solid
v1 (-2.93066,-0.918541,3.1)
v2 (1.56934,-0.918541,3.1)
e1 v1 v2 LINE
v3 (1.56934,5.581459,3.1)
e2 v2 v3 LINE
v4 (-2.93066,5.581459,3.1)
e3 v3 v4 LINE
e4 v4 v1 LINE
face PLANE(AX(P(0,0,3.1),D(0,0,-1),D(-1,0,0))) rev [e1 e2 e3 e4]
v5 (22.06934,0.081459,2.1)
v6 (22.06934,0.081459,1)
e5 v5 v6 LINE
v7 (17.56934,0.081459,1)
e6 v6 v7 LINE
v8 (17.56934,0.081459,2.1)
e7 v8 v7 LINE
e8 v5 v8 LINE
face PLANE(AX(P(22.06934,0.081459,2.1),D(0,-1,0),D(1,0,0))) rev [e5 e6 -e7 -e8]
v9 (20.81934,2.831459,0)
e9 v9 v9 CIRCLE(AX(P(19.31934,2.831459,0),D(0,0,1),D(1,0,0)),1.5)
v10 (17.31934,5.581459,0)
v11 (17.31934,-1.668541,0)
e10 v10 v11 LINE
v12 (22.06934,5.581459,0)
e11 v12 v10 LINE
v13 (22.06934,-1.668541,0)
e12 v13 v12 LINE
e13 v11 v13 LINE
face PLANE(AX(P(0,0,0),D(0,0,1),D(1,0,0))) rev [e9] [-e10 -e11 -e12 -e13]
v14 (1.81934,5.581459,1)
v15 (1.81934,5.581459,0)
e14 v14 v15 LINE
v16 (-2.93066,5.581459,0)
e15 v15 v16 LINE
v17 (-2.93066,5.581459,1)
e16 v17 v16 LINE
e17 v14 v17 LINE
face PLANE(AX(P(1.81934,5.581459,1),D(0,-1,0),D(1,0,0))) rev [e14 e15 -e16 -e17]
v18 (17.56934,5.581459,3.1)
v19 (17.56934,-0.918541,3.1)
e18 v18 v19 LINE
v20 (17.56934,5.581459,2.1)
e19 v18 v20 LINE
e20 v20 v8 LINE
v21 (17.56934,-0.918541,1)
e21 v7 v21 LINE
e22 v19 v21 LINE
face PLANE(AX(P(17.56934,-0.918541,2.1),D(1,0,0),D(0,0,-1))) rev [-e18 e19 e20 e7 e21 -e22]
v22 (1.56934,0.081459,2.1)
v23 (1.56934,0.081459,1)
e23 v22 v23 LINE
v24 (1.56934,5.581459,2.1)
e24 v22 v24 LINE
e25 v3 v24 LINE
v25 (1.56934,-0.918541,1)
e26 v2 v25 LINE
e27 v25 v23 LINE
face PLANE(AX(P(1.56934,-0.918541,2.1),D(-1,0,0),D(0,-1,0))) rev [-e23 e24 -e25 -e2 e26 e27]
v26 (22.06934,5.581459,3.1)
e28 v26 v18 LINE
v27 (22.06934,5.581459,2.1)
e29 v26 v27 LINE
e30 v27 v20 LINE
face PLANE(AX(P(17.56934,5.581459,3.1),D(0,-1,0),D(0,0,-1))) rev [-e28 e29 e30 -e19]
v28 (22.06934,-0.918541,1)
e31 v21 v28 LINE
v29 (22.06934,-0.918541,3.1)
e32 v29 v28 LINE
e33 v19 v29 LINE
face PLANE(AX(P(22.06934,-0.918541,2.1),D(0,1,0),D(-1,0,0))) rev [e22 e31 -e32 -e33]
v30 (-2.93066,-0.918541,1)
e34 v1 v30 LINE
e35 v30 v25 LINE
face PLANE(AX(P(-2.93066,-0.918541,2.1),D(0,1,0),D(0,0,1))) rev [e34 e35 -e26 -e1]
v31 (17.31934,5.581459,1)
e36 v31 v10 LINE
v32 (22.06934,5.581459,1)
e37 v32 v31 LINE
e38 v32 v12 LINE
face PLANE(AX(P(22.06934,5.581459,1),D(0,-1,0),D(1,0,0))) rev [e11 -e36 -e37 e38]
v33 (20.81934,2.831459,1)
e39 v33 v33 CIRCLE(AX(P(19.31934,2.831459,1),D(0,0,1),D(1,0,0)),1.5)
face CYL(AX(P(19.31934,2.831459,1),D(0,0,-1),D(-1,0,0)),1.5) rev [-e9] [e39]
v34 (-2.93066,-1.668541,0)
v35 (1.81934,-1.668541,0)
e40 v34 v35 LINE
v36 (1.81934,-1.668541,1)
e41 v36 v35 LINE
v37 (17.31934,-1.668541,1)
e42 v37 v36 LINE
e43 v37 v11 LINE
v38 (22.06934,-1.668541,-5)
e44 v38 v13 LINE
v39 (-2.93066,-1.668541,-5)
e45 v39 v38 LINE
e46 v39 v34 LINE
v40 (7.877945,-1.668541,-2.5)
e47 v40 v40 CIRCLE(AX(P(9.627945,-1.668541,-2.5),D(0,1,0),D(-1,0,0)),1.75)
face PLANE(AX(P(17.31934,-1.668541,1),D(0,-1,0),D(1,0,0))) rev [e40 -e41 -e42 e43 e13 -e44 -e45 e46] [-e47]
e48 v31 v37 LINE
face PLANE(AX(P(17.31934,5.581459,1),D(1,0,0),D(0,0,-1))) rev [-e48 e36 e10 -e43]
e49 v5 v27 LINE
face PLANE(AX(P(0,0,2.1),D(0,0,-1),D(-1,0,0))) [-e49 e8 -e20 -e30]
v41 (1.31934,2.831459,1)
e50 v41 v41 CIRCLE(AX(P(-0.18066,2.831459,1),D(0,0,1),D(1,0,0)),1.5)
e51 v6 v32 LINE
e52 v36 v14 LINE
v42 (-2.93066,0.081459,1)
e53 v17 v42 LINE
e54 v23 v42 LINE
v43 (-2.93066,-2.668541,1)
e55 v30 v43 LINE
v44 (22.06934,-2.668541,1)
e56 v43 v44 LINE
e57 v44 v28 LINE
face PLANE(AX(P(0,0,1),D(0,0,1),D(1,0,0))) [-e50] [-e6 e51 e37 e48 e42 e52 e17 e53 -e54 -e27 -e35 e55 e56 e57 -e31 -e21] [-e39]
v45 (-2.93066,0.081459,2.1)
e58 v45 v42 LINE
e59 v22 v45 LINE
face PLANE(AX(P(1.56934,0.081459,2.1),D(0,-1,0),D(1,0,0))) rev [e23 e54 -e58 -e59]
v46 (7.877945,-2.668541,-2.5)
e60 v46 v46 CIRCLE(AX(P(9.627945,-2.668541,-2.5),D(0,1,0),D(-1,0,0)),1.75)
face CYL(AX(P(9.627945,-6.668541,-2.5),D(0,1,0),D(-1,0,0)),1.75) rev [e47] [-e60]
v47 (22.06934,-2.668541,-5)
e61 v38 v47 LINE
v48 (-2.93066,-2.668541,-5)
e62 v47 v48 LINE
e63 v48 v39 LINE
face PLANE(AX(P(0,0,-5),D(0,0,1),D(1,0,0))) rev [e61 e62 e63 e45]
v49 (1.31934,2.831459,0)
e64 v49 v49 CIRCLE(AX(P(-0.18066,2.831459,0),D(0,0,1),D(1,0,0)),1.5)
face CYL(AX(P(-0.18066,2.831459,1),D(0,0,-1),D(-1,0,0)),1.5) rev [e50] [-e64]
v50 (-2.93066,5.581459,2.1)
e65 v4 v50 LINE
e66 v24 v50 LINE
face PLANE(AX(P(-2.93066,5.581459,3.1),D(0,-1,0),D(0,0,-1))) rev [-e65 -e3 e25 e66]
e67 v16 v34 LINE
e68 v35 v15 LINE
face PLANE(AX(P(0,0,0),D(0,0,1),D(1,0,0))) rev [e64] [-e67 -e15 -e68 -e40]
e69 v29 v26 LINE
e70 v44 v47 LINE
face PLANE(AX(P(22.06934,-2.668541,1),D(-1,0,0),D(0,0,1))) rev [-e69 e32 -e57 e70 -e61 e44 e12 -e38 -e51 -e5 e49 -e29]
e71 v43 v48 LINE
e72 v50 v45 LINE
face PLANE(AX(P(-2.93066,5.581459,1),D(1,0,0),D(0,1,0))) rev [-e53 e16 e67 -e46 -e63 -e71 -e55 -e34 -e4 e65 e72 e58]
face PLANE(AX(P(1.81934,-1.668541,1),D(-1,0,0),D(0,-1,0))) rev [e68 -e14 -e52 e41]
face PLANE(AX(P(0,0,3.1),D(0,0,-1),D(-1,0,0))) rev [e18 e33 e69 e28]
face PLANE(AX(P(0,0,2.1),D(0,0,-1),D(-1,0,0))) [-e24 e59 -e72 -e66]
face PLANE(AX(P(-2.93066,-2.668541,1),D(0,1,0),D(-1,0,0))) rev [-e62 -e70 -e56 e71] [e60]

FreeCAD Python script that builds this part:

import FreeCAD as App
import Part
import Sketcher

V = App.Vector
Q = App.Units.Quantity

doc = App.newDocument("Part")
body = doc.addObject("PartDesign::Body", "Body")

# Sketch on XY plane
sketch1 = body.newObject("Sketcher::SketchObject", "Sketch")
sketch1.AttachmentSupport = (doc.getObject("XY_Plane"), [""])
sketch1.MapMode = "FlatFace"
sketch1.addGeometry(Part.LineSegment(V(-2.9, 5.6, 0), V(-2.9, -2.7, 0)), False)
sketch1.addGeometry(Part.LineSegment(V(-2.9, -2.7, 0), V(22.1, -2.7, 0)), False)
sketch1.addGeometry(Part.LineSegment(V(22.1, -2.7, 0), V(22.1, 5.6, 0)), False)
sketch1.addGeometry(Part.LineSegment(V(22.1, 5.6, 0), V(17.3, 5.6, 0)), False)
sketch1.addGeometry(Part.LineSegment(V(17.3, 5.6, 0), V(17.3, -1.7, 0)), False)
sketch1.addGeometry(Part.LineSegment(V(17.3, -1.7, 0), V(1.8, -1.7, 0)), False)
sketch1.addGeometry(Part.LineSegment(V(1.8, -1.7, 0), V(1.8, 5.6, 0)), False)
sketch1.addGeometry(Part.LineSegment(V(1.8, 5.6, 0), V(-2.9, 5.6, 0)), False)
sketch1.addGeometry(Part.Circle(V(-0.2, 2.8, 0), V(0, 0, 1), 1.5), False)
sketch1.addGeometry(Part.Circle(V(19.3, 2.8, 0), V(0, 0, 1), 1.5), False)
sketch1.addConstraint(Sketcher.Constraint("Coincident", 0, 2, 1, 1))
sketch1.addConstraint(Sketcher.Constraint("Coincident", 1, 2, 2, 1))
sketch1.addConstraint(Sketcher.Constraint("Coincident", 2, 2, 3, 1))
sketch1.addConstraint(Sketcher.Constraint("Coincident", 3, 2, 4, 1))
sketch1.addConstraint(Sketcher.Constraint("Coincident", 4, 2, 5, 1))
sketch1.addConstraint(Sketcher.Constraint("Coincident", 5, 2, 6, 1))
sketch1.addConstraint(Sketcher.Constraint("Coincident", 6, 2, 7, 1))
sketch1.addConstraint(Sketcher.Constraint("Coincident", 7, 2, 0, 1))
sketch1.addConstraint(Sketcher.Constraint("Vertical", 0))
sketch1.addConstraint(Sketcher.Constraint("Horizontal", 1))
sketch1.addConstraint(Sketcher.Constraint("Vertical", 2))
sketch1.addConstraint(Sketcher.Constraint("Horizontal", 3))
sketch1.addConstraint(Sketcher.Constraint("Vertical", 4))
sketch1.addConstraint(Sketcher.Constraint("Horizontal", 5))
sketch1.addConstraint(Sketcher.Constraint("Vertical", 6))
sketch1.addConstraint(Sketcher.Constraint("Horizontal", 7))
sketch1.addConstraint(Sketcher.Constraint("Equal", 8, 9))
sketch1.addConstraint(Sketcher.Constraint("Horizontal", 8, 3, 9, 3))
sketch1.addConstraint(Sketcher.Constraint("Horizontal", 3, 2, 6, 2))
sketch1.addConstraint(Sketcher.Constraint("Equal", 3, 7))
sketch1.addConstraint(Sketcher.Constraint("Diameter", 8, Q("3 mm")))
sketch1.addConstraint(Sketcher.Constraint("DistanceX", 1, 1, 1, 2, Q("25 mm")))
sketch1.addConstraint(Sketcher.Constraint("DistanceX", 5, 2, 5, 1, Q("15.5 mm")))
sketch1.addConstraint(Sketcher.Constraint("DistanceX", 3, 2, 9, 3, Q("2 mm")))
sketch1.addConstraint(Sketcher.Constraint("DistanceY", 1, 2, 4, 2, Q("1 mm")))
sketch1.addConstraint(Sketcher.Constraint("DistanceX", 8, 3, 5, 2, Q("2 mm")))
sketch1.addConstraint(Sketcher.Constraint("DistanceY", 0, 2, 0, 1, Q("8.25 mm")))
sketch1.addConstraint(Sketcher.Constraint("DistanceY", 0, 2, 8, 3, Q("5.5 mm")))
sketch1.addConstraint(Sketcher.Constraint("DistanceX", 8, 3, -1, 1, Q("0.18066 mm")))
sketch1.addConstraint(Sketcher.Constraint("DistanceY", -1, 1, 8, 3, Q("2.831459 mm")))
pad1 = body.newObject("PartDesign::Pad", "Pad")
pad1.Profile = sketch1
pad1.Length = 1

# Sketch on XY plane
sketch2 = body.newObject("Sketcher::SketchObject", "Sketch001")
sketch2.AttachmentSupport = (doc.getObject("XY_Plane"), [""])
sketch2.MapMode = "FlatFace"
sketch2.addGeometry(Part.LineSegment(V(22.1, -1.7, 0), V(22.1, -2.7, 0)), False)
sketch2.addGeometry(Part.LineSegment(V(22.1, -2.7, 0), V(-2.9, -2.7, 0)), False)
sketch2.addGeometry(Part.LineSegment(V(-2.9, -2.7, 0), V(-2.9, -1.7, 0)), False)
sketch2.addGeometry(Part.LineSegment(V(-2.9, -1.7, 0), V(22.1, -1.7, 0)), False)
sketch2.addConstraint(Sketcher.Constraint("Coincident", 0, 2, 1, 1))
sketch2.addConstraint(Sketcher.Constraint("Coincident", 1, 2, 2, 1))
sketch2.addConstraint(Sketcher.Constraint("Coincident", 2, 2, 3, 1))
sketch2.addConstraint(Sketcher.Constraint("Coincident", 3, 2, 0, 1))
sketch2.addConstraint(Sketcher.Constraint("Vertical", 0))
sketch2.addConstraint(Sketcher.Constraint("Horizontal", 1))
sketch2.addConstraint(Sketcher.Constraint("Vertical", 2))
sketch2.addConstraint(Sketcher.Constraint("Horizontal", 3))
sketch2.addConstraint(Sketcher.Constraint("DistanceX", 1, 2, 1, 1, Q("25 mm")))
sketch2.addConstraint(Sketcher.Constraint("DistanceY", 0, 2, 0, 1, Q("1 mm")))
sketch2.addConstraint(Sketcher.Constraint("DistanceX", -1, 1, 0, 2, Q("22.06934 mm")))
sketch2.addConstraint(Sketcher.Constraint("DistanceY", 0, 2, -1, 1, Q("2.668541 mm")))
pad2 = body.newObject("PartDesign::Pad", "Pad001")
pad2.Profile = sketch2
pad2.Length = 5
pad2.Reversed = True

# Sketch on XZ plane
sketch3 = body.newObject("Sketcher::SketchObject", "Sketch002")
sketch3.AttachmentSupport = (doc.getObject("XZ_Plane"), [""])
sketch3.MapMode = "FlatFace"
sketch3.AttachmentOffset = App.Placement(V(0, 0, 1.668541), App.Rotation())
sketch3.addGeometry(Part.Circle(V(9.6, -2.5, 0), V(0, 0, 1), 1.8), False)
sketch3.addConstraint(Sketcher.Constraint("Diameter", 0, Q("3.5 mm")))
sketch3.addConstraint(Sketcher.Constraint("DistanceY", 0, 3, -1, 1, Q("2.5 mm")))
sketch3.addConstraint(Sketcher.Constraint("DistanceX", -1, 1, 0, 3, Q("9.627945 mm")))
pocket1 = body.newObject("PartDesign::Pocket", "Pocket")
pocket1.Profile = sketch3
pocket1.Length = 5
pocket1.Reversed = True

# Sketch on XY plane
sketch4 = body.newObject("Sketcher::SketchObject", "Sketch003")
sketch4.AttachmentSupport = (doc.getObject("XY_Plane"), [""])
sketch4.MapMode = "FlatFace"
sketch4.AttachmentOffset = App.Placement(V(0, 0, 1), App.Rotation())
sketch4.addGeometry(Part.LineSegment(V(-2.9, 0.1, 0), V(-2.9, -0.9, 0)), False)
sketch4.addGeometry(Part.LineSegment(V(-2.9, -0.9, 0), V(1.6, -0.9, 0)), False)
sketch4.addGeometry(Part.LineSegment(V(1.6, -0.9, 0), V(1.6, 0.1, 0)), False)
sketch4.addGeometry(Part.LineSegment(V(1.6, 0.1, 0), V(-2.9, 0.1, 0)), False)
sketch4.addGeometry(Part.LineSegment(V(17.6, 0.1, 0), V(17.6, -0.9, 0)), False)
sketch4.addGeometry(Part.LineSegment(V(17.6, -0.9, 0), V(22.1, -0.9, 0)), False)
sketch4.addGeometry(Part.LineSegment(V(22.1, -0.9, 0), V(22.1, 0.1, 0)), False)
sketch4.addGeometry(Part.LineSegment(V(22.1, 0.1, 0), V(17.6, 0.1, 0)), False)
sketch4.addConstraint(Sketcher.Constraint("Coincident", 0, 2, 1, 1))
sketch4.addConstraint(Sketcher.Constraint("Coincident", 1, 2, 2, 1))
sketch4.addConstraint(Sketcher.Constraint("Coincident", 2, 2, 3, 1))
sketch4.addConstraint(Sketcher.Constraint("Coincident", 3, 2, 0, 1))
sketch4.addConstraint(Sketcher.Constraint("Coincident", 4, 2, 5, 1))
sketch4.addConstraint(Sketcher.Constraint("Coincident", 5, 2, 6, 1))
sketch4.addConstraint(Sketcher.Constraint("Coincident", 6, 2, 7, 1))
sketch4.addConstraint(Sketcher.Constraint("Coincident", 7, 2, 4, 1))
sketch4.addConstraint(Sketcher.Constraint("Vertical", 0))
sketch4.addConstraint(Sketcher.Constraint("Horizontal", 1))
sketch4.addConstraint(Sketcher.Constraint("Vertical", 2))
sketch4.addConstraint(Sketcher.Constraint("Horizontal", 3))
sketch4.addConstraint(Sketcher.Constraint("Vertical", 4))
sketch4.addConstraint(Sketcher.Constraint("Horizontal", 5))
sketch4.addConstraint(Sketcher.Constraint("Vertical", 6))
sketch4.addConstraint(Sketcher.Constraint("Horizontal", 7))
sketch4.addConstraint(Sketcher.Constraint("Horizontal", 1, 2, 4, 2))
sketch4.addConstraint(Sketcher.Constraint("Horizontal", 3, 2, 6, 2))
sketch4.addConstraint(Sketcher.Constraint("Equal", 3, 5))
sketch4.addConstraint(Sketcher.Constraint("DistanceY", 0, 2, 0, 1, Q("1 mm")))
sketch4.addConstraint(Sketcher.Constraint("DistanceX", 1, 1, 1, 2, Q("4.5 mm")))
sketch4.addConstraint(Sketcher.Constraint("DistanceX", 1, 2, 4, 2, Q("16 mm")))
sketch4.addConstraint(Sketcher.Constraint("DistanceX", 0, 2, -1, 1, Q("2.93066 mm")))
sketch4.addConstraint(Sketcher.Constraint("DistanceY", 0, 2, -1, 1, Q("0.918541 mm")))
pad3 = body.newObject("PartDesign::Pad", "Pad002")
pad3.Profile = sketch4
pad3.Length = 1.1

# Sketch on XY plane
sketch5 = body.newObject("Sketcher::SketchObject", "Sketch004")
sketch5.AttachmentSupport = (doc.getObject("XY_Plane"), [""])
sketch5.MapMode = "FlatFace"
sketch5.AttachmentOffset = App.Placement(V(0, 0, 2.1), App.Rotation())
sketch5.addGeometry(Part.LineSegment(V(-2.9, 5.6, 0), V(-2.9, -0.9, 0)), False)
sketch5.addGeometry(Part.LineSegment(V(-2.9, -0.9, 0), V(1.6, -0.9, 0)), False)
sketch5.addGeometry(Part.LineSegment(V(1.6, -0.9, 0), V(1.6, 5.6, 0)), False)
sketch5.addGeometry(Part.LineSegment(V(1.6, 5.6, 0), V(-2.9, 5.6, 0)), False)
sketch5.addGeometry(Part.LineSegment(V(17.6, 5.6, 0), V(17.6, -0.9, 0)), False)
sketch5.addGeometry(Part.LineSegment(V(17.6, -0.9, 0), V(22.1, -0.9, 0)), False)
sketch5.addGeometry(Part.LineSegment(V(22.1, -0.9, 0), V(22.1, 5.6, 0)), False)
sketch5.addGeometry(Part.LineSegment(V(22.1, 5.6, 0), V(17.6, 5.6, 0)), False)
sketch5.addConstraint(Sketcher.Constraint("Coincident", 0, 2, 1, 1))
sketch5.addConstraint(Sketcher.Constraint("Coincident", 1, 2, 2, 1))
sketch5.addConstraint(Sketcher.Constraint("Coincident", 2, 2, 3, 1))
sketch5.addConstraint(Sketcher.Constraint("Coincident", 3, 2, 0, 1))
sketch5.addConstraint(Sketcher.Constraint("Coincident", 4, 2, 5, 1))
sketch5.addConstraint(Sketcher.Constraint("Coincident", 5, 2, 6, 1))
sketch5.addConstraint(Sketcher.Constraint("Coincident", 6, 2, 7, 1))
sketch5.addConstraint(Sketcher.Constraint("Coincident", 7, 2, 4, 1))
sketch5.addConstraint(Sketcher.Constraint("Vertical", 0))
sketch5.addConstraint(Sketcher.Constraint("Horizontal", 1))
sketch5.addConstraint(Sketcher.Constraint("Vertical", 2))
sketch5.addConstraint(Sketcher.Constraint("Horizontal", 3))
sketch5.addConstraint(Sketcher.Constraint("Vertical", 4))
sketch5.addConstraint(Sketcher.Constraint("Horizontal", 5))
sketch5.addConstraint(Sketcher.Constraint("Vertical", 6))
sketch5.addConstraint(Sketcher.Constraint("Horizontal", 7))
sketch5.addConstraint(Sketcher.Constraint("Horizontal", 1, 2, 4, 2))
sketch5.addConstraint(Sketcher.Constraint("Horizontal", 3, 2, 6, 2))
sketch5.addConstraint(Sketcher.Constraint("Equal", 3, 5))
sketch5.addConstraint(Sketcher.Constraint("DistanceX", 1, 1, 1, 2, Q("4.5 mm")))
sketch5.addConstraint(Sketcher.Constraint("DistanceY", 0, 2, 0, 1, Q("6.5 mm")))
sketch5.addConstraint(Sketcher.Constraint("DistanceX", 1, 2, 4, 2, Q("16 mm")))
sketch5.addConstraint(Sketcher.Constraint("DistanceX", 0, 2, -1, 1, Q("2.93066 mm")))
sketch5.addConstraint(Sketcher.Constraint("DistanceY", 0, 2, -1, 1, Q("0.918541 mm")))
pad4 = body.newObject("PartDesign::Pad", "Pad003")
pad4.Profile = sketch5
pad4.Length = 1

doc.recompute()
